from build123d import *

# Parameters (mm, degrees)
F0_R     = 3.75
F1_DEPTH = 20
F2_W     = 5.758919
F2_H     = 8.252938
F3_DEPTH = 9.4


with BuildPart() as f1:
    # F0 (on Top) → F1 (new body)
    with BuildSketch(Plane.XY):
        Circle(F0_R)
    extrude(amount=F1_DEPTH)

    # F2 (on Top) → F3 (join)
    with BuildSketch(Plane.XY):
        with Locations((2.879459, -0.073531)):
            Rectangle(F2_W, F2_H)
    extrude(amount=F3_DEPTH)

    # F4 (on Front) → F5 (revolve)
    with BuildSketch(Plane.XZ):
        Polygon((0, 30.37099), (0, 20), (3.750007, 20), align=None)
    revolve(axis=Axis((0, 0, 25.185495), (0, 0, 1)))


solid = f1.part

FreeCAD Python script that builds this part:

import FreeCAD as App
import Part
import Sketcher
Q = App.Units.Quantity

doc = App.newDocument("Part")
body = doc.addObject("PartDesign::Body", "Body")

# Sketch on XY plane
sketch1 = body.newObject("Sketcher::SketchObject", "Sketch")
sketch1.AttachmentSupport = (doc.getObject("XY_Plane"), [""])
sketch1.MapMode = "FlatFace"
sketch1.addGeometry(Part.Circle(App.Vector(0, 0, 0), App.Vector(0, 0, 1), 3.8), False)
sketch1.addConstraint([
    Sketcher.Constraint("Coincident", 0, 3, -1, 1),
    Sketcher.Constraint("Diameter", 0, Q("7.5 mm")),
])
pad1 = body.newObject("PartDesign::Pad", "Pad")
pad1.Profile = sketch1
pad1.Length = 20

# Sketch on XY plane
sketch2 = body.newObject("Sketcher::SketchObject", "Sketch001")
sketch2.AttachmentSupport = (doc.getObject("XY_Plane"), [""])
sketch2.MapMode = "FlatFace"
sketch2.addGeometry([
    Part.LineSegment(App.Vector(0, 4, 0), App.Vector(0, -4, 0)),
    Part.LineSegment(App.Vector(0, -4, 0), App.Vector(6, -4, 0)),
    Part.LineSegment(App.Vector(6, -4, 0), App.Vector(6, 4, 0)),
    Part.LineSegment(App.Vector(6, 4, 0), App.Vector(0, 4, 0)),
], False)
sketch2.addConstraint([
    Sketcher.Constraint("Coincident", 0, 2, 1, 1),
    Sketcher.Constraint("Coincident", 1, 2, 2, 1),
    Sketcher.Constraint("Coincident", 2, 2, 3, 1),
    Sketcher.Constraint("Coincident", 3, 2, 0, 1),
    Sketcher.Constraint("Vertical", 0),
    Sketcher.Constraint("Horizontal", 1),
    Sketcher.Constraint("Vertical", 2),
    Sketcher.Constraint("Horizontal", 3),
    Sketcher.Constraint("PointOnObject", 0, 2, -2),
    Sketcher.Constraint("DistanceY", 0, 2, -1, 1, Q("4.2 mm")),
    Sketcher.Constraint("DistanceX", 1, 1, 1, 2, Q("5.758919 mm")),
    Sketcher.Constraint("DistanceY", 0, 2, 0, 1, Q("8.252938 mm")),
])
pad2 = body.newObject("PartDesign::Pad", "Pad001")
pad2.Profile = sketch2
pad2.Length = 9.4

# Sketch on XZ plane
sketch3 = body.newObject("Sketcher::SketchObject", "Sketch002")
sketch3.AttachmentSupport = (doc.getObject("XZ_Plane"), [""])
sketch3.MapMode = "FlatFace"
sketch3.addGeometry([
    Part.LineSegment(App.Vector(0, 30.4, 0), App.Vector(0, 20, 0)),
    Part.LineSegment(App.Vector(0, 20, 0), App.Vector(3.8, 20, 0)),
    Part.LineSegment(App.Vector(3.8, 20, 0), App.Vector(0, 30.4, 0)),
], False)
sketch3.addConstraint([
    Sketcher.Constraint("Coincident", 0, 2, 1, 1),
    Sketcher.Constraint("Coincident", 1, 2, 2, 1),
    Sketcher.Constraint("Coincident", 2, 2, 0, 1),
    Sketcher.Constraint("Vertical", 0),
    Sketcher.Constraint("Horizontal", 1),
    Sketcher.Constraint("PointOnObject", 0, 2, -2),
    Sketcher.Constraint("DistanceY", -1, 1, 0, 2, Q("20 mm")),
    Sketcher.Constraint("DistanceY", 0, 2, 0, 1, Q("10.37099 mm")),
    Sketcher.Constraint("DistanceX", 1, 1, 1, 2, Q("3.750007 mm")),
])
revolution = body.newObject("PartDesign::Revolution", "Revolution")
revolution.Profile = sketch3
revolution.ReferenceAxis = (sketch3, ["V_Axis"])
revolution.Angle = 360

doc.recompute()
